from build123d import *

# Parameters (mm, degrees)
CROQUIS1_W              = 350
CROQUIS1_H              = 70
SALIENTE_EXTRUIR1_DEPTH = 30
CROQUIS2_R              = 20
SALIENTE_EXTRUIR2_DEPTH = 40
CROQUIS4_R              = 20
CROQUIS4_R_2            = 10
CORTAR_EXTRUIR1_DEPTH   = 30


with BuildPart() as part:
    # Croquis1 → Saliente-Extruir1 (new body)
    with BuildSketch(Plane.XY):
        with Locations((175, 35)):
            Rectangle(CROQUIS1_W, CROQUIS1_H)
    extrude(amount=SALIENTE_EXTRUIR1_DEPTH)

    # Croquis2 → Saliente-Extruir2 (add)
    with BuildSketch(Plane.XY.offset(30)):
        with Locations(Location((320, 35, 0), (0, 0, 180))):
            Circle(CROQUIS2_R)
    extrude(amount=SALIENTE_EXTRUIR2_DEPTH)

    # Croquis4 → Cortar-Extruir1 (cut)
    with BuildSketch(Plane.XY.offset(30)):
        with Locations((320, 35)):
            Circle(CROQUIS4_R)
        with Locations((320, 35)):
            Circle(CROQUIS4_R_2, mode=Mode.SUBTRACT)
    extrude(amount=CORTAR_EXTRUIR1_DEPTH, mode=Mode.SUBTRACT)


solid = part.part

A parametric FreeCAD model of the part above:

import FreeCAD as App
import Part
import Sketcher
from FreeCAD import Vector


def add_polygon(sketch, points):
    """Adds a closed chain of lines whose ends are joined by coincident constraints."""
    first, n = sketch.GeometryCount, len(points)
    for a, b in zip(points, points[1:] + points[:1]):
        sketch.addGeometry(Part.LineSegment(App.Vector(*a, 0), App.Vector(*b, 0)), False)
    for i in range(n):
        sketch.addConstraint(Sketcher.Constraint("Coincident", first + i, 2, first + (i + 1) % n, 1))

doc = App.newDocument("Part")
body = doc.addObject("PartDesign::Body", "Body")

# Sketch on XY plane
sketch1 = body.newObject("Sketcher::SketchObject", "Sketch")
sketch1.AttachmentSupport = (doc.getObject("XY_Plane"), [""])
sketch1.MapMode = "FlatFace"
add_polygon(sketch1, [(0, 70), (0, 0), (350, 0), (350, 70)])  # lines 0-3
sketch1.addConstraint(Sketcher.Constraint("Vertical", 0))
sketch1.addConstraint(Sketcher.Constraint("Horizontal", 1))
sketch1.addConstraint(Sketcher.Constraint("Vertical", 2))
sketch1.addConstraint(Sketcher.Constraint("Horizontal", 3))
sketch1.addConstraint(Sketcher.Constraint("Coincident", 0, 2, -1, 1))
sketch1.addConstraint(Sketcher.Constraint("DistanceX", 1, 1, 1, 2, 350.0))
sketch1.addConstraint(Sketcher.Constraint("DistanceY", 0, 2, 0, 1, 70.0))
pad1 = body.newObject("PartDesign::Pad", "Pad")
pad1.Profile = sketch1
pad1.Length = 30

# Sketch on XY plane
sketch2 = body.newObject("Sketcher::SketchObject", "Sketch001")
sketch2.AttachmentSupport = (doc.getObject("XY_Plane"), [""])
sketch2.MapMode = "FlatFace"
sketch2.AttachmentOffset = App.Placement(Vector(0, 0, 30), App.Rotation())
sketch2.addGeometry(Part.Circle(Vector(320, 35, 0), Vector(0, 0, 1), 20), False)
sketch2.addConstraint(Sketcher.Constraint("Diameter", 0, 40.0))
sketch2.addConstraint(Sketcher.Constraint("DistanceX", -1, 1, 0, 3, 320.0))
sketch2.addConstraint(Sketcher.Constraint("DistanceY", -1, 1, 0, 3, 35.0))
pad2 = body.newObject("PartDesign::Pad", "Pad001")
pad2.Profile = sketch2
pad2.Length = 40

# Sketch on XY plane
sketch3 = body.newObject("Sketcher::SketchObject", "Sketch002")
sketch3.AttachmentSupport = (doc.getObject("XY_Plane"), [""])
sketch3.MapMode = "FlatFace"
sketch3.AttachmentOffset = App.Placement(Vector(0, 0, 30), App.Rotation())
sketch3.addGeometry(Part.Circle(Vector(320, 35, 0), Vector(0, 0, 1), 20), False)
sketch3.addGeometry(Part.Circle(Vector(320, 35, 0), Vector(0, 0, 1), 10), False)
sketch3.addConstraint(Sketcher.Constraint("Coincident", 1, 3, 0, 3))
sketch3.addConstraint(Sketcher.Constraint("Diameter", 0, 40.0))
sketch3.addConstraint(Sketcher.Constraint("Diameter", 1, 20.0))
sketch3.addConstraint(Sketcher.Constraint("DistanceX", -1, 1, 0, 3, 320.0))
sketch3.addConstraint(Sketcher.Constraint("DistanceY", -1, 1, 0, 3, 35.0))
pocket1 = body.newObject("PartDesign::Pocket", "Pocket")
pocket1.Profile = sketch3
pocket1.Length = 30
pocket1.Reversed = True

doc.recompute()
